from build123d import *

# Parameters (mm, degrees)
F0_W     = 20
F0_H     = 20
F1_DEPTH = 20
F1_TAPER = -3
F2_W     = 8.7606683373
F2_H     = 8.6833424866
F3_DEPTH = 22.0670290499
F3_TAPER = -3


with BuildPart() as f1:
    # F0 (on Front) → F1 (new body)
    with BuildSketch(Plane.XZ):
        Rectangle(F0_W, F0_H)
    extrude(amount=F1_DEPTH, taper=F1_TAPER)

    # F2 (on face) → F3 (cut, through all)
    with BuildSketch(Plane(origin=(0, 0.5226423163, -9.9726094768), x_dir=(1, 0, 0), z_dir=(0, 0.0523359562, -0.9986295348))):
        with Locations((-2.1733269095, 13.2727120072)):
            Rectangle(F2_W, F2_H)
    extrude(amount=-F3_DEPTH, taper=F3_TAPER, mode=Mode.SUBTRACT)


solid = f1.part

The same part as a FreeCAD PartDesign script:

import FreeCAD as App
import Part
import Sketcher

V = App.Vector
Q = App.Units.Quantity

doc = App.newDocument("Part")
body = doc.addObject("PartDesign::Body", "Body")

sketch1 = doc.addObject("Sketcher::SketchObject", "Sketch")
body.addObject(sketch1)
sketch1.AttachmentSupport = (doc.XZ_Plane, [""])
sketch1.MapMode = "FlatFace"
sketch1.addGeometry(Part.LineSegment(V(-10, 10, 0), V(-10, -10, 0)), False)
sketch1.addGeometry(Part.LineSegment(V(-10, -10, 0), V(10, -10, 0)), False)
sketch1.addGeometry(Part.LineSegment(V(10, -10, 0), V(10, 10, 0)), False)
sketch1.addGeometry(Part.LineSegment(V(10, 10, 0), V(-10, 10, 0)), False)
sketch1.addConstraint(Sketcher.Constraint("Coincident", 0, 2, 1, 1))
sketch1.addConstraint(Sketcher.Constraint("Coincident", 1, 2, 2, 1))
sketch1.addConstraint(Sketcher.Constraint("Coincident", 2, 2, 3, 1))
sketch1.addConstraint(Sketcher.Constraint("Coincident", 3, 2, 0, 1))
sketch1.addConstraint(Sketcher.Constraint("Vertical", 0))
sketch1.addConstraint(Sketcher.Constraint("Horizontal", 1))
sketch1.addConstraint(Sketcher.Constraint("Vertical", 2))
sketch1.addConstraint(Sketcher.Constraint("Horizontal", 3))
sketch1.addConstraint(Sketcher.Constraint("Symmetric", 0, 2, 2, 2, -1, 1))
sketch1.addConstraint(Sketcher.Constraint("Equal", 3, 0))
sketch1.addConstraint(Sketcher.Constraint("DistanceX", 1, 1, 1, 2, Q("20 mm")))
pad1 = doc.addObject("PartDesign::Pad", "Pad")
body.addObject(pad1)
pad1.Profile = sketch1
pad1.Length = 20
pad1.TaperAngle = 3

sketch2 = doc.addObject("Sketcher::SketchObject", "Sketch001")
body.addObject(sketch2)
sketch2.Placement = App.Placement(V(0, 0.522642, -9.972609), App.Rotation(V(1, 0, 0), V(0, -0.998629535, -0.052335956), V(0, 0.052335956, -0.998629535), "ZXY"))
sketch2.addGeometry(Part.LineSegment(V(-7, 18, 0), V(-7, 9, 0)), False)
sketch2.addGeometry(Part.LineSegment(V(-7, 9, 0), V(2, 9, 0)), False)
sketch2.addGeometry(Part.LineSegment(V(2, 9, 0), V(2, 18, 0)), False)
sketch2.addGeometry(Part.LineSegment(V(2, 18, 0), V(-7, 18, 0)), False)
sketch2.addConstraint(Sketcher.Constraint("Coincident", 0, 2, 1, 1))
sketch2.addConstraint(Sketcher.Constraint("Coincident", 1, 2, 2, 1))
sketch2.addConstraint(Sketcher.Constraint("Coincident", 2, 2, 3, 1))
sketch2.addConstraint(Sketcher.Constraint("Coincident", 3, 2, 0, 1))
sketch2.addConstraint(Sketcher.Constraint("Vertical", 0))
sketch2.addConstraint(Sketcher.Constraint("Horizontal", 1))
sketch2.addConstraint(Sketcher.Constraint("Vertical", 2))
sketch2.addConstraint(Sketcher.Constraint("Horizontal", 3))
sketch2.addConstraint(Sketcher.Constraint("DistanceX", 1, 1, 1, 2, Q("8.760668 mm")))
sketch2.addConstraint(Sketcher.Constraint("DistanceY", 0, 2, 0, 1, Q("8.683342 mm")))
sketch2.addConstraint(Sketcher.Constraint("DistanceX", 0, 2, -1, 1, Q("6.553661 mm")))
sketch2.addConstraint(Sketcher.Constraint("DistanceY", -1, 1, 0, 2, Q("8.931041 mm")))
pocket1 = doc.addObject("PartDesign::Pocket", "Pocket")
body.addObject(pocket1)
pocket1.Profile = sketch2
pocket1.Length = 22.067029
pocket1.TaperAngle = 3

doc.recompute()
